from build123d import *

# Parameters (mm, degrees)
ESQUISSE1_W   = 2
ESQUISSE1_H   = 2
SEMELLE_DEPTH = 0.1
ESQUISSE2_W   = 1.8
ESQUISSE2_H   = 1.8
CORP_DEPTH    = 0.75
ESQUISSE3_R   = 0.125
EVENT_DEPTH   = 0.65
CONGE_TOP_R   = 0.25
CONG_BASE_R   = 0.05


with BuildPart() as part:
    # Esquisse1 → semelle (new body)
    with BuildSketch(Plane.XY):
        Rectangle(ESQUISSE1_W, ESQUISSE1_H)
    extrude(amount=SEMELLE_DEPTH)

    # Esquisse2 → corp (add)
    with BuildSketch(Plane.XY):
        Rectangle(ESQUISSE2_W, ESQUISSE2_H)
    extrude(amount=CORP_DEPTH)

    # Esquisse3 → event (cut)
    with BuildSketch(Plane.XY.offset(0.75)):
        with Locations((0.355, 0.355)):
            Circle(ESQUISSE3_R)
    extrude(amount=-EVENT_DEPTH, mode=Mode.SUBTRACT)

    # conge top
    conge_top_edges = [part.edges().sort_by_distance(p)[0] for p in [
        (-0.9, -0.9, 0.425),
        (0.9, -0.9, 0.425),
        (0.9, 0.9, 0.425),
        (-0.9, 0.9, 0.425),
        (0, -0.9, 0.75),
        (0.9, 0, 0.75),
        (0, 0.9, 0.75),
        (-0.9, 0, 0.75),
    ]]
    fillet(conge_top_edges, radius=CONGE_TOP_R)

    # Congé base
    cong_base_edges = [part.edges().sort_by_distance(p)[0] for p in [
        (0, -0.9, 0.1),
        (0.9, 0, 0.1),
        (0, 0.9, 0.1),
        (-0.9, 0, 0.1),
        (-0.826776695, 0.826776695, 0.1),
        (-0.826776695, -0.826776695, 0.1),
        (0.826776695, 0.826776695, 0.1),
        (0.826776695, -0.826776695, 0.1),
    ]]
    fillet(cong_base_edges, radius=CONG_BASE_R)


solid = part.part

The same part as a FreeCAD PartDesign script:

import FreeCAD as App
import Part
import Sketcher

V = App.Vector


def edges_at(feature, points):
    """Names of the edges that pass closest to the given points."""
    edges = feature.Shape.Edges
    near = lambda p: min(range(len(edges)), key=lambda i: edges[i].distToShape(Part.Vertex(*p))[0])
    return sorted({f"Edge{near(p) + 1}" for p in points})

doc = App.newDocument("Part")
body = doc.addObject("PartDesign::Body", "Body")

# Sketch on XY plane
sketch1 = body.newObject("Sketcher::SketchObject", "Sketch")
sketch1.AttachmentSupport = (doc.getObject("XY_Plane"), [""])
sketch1.MapMode = "FlatFace"
sketch1.addGeometry(Part.LineSegment(V(-1, 1, 0), V(-1, -1, 0)), False)
sketch1.addGeometry(Part.LineSegment(V(-1, -1, 0), V(1, -1, 0)), False)
sketch1.addGeometry(Part.LineSegment(V(1, -1, 0), V(1, 1, 0)), False)
sketch1.addGeometry(Part.LineSegment(V(1, 1, 0), V(-1, 1, 0)), False)
sketch1.addConstraint(Sketcher.Constraint("Coincident", 0, 2, 1, 1))
sketch1.addConstraint(Sketcher.Constraint("Coincident", 1, 2, 2, 1))
sketch1.addConstraint(Sketcher.Constraint("Coincident", 2, 2, 3, 1))
sketch1.addConstraint(Sketcher.Constraint("Coincident", 3, 2, 0, 1))
sketch1.addConstraint(Sketcher.Constraint("Vertical", 0))
sketch1.addConstraint(Sketcher.Constraint("Horizontal", 1))
sketch1.addConstraint(Sketcher.Constraint("Vertical", 2))
sketch1.addConstraint(Sketcher.Constraint("Horizontal", 3))
sketch1.addConstraint(Sketcher.Constraint("Symmetric", 0, 2, 2, 2, -1, 1))
sketch1.addConstraint(Sketcher.Constraint("Equal", 3, 0))
sketch1.addConstraint(Sketcher.Constraint("DistanceX", 1, 1, 1, 2, 2.0))
pad1 = body.newObject("PartDesign::Pad", "Pad")
pad1.Profile = sketch1
pad1.Length = 0.1

# Sketch on XY plane
sketch2 = body.newObject("Sketcher::SketchObject", "Sketch001")
sketch2.AttachmentSupport = (doc.getObject("XY_Plane"), [""])
sketch2.MapMode = "FlatFace"
sketch2.addGeometry(Part.LineSegment(V(-0.9, 0.9, 0), V(-0.9, -0.9, 0)), False)
sketch2.addGeometry(Part.LineSegment(V(-0.9, -0.9, 0), V(0.9, -0.9, 0)), False)
sketch2.addGeometry(Part.LineSegment(V(0.9, -0.9, 0), V(0.9, 0.9, 0)), False)
sketch2.addGeometry(Part.LineSegment(V(0.9, 0.9, 0), V(-0.9, 0.9, 0)), False)
sketch2.addConstraint(Sketcher.Constraint("Coincident", 0, 2, 1, 1))
sketch2.addConstraint(Sketcher.Constraint("Coincident", 1, 2, 2, 1))
sketch2.addConstraint(Sketcher.Constraint("Coincident", 2, 2, 3, 1))
sketch2.addConstraint(Sketcher.Constraint("Coincident", 3, 2, 0, 1))
sketch2.addConstraint(Sketcher.Constraint("Vertical", 0))
sketch2.addConstraint(Sketcher.Constraint("Horizontal", 1))
sketch2.addConstraint(Sketcher.Constraint("Vertical", 2))
sketch2.addConstraint(Sketcher.Constraint("Horizontal", 3))
sketch2.addConstraint(Sketcher.Constraint("Symmetric", 0, 2, 2, 2, -1, 1))
sketch2.addConstraint(Sketcher.Constraint("Equal", 3, 0))
sketch2.addConstraint(Sketcher.Constraint("DistanceX", 1, 1, 1, 2, 1.8))
pad2 = body.newObject("PartDesign::Pad", "Pad001")
pad2.Profile = sketch2
pad2.Length = 0.75

# Sketch on XY plane
sketch3 = body.newObject("Sketcher::SketchObject", "Sketch002")
sketch3.AttachmentSupport = (doc.getObject("XY_Plane"), [""])
sketch3.MapMode = "FlatFace"
sketch3.AttachmentOffset = App.Placement(V(0, 0, 0.75), App.Rotation())
sketch3.addGeometry(Part.Circle(V(0.35, 0.35, 0), V(0, 0, 1), 0.12), False)
sketch3.addConstraint(Sketcher.Constraint("Diameter", 0, 0.25))
sketch3.addConstraint(Sketcher.Constraint("DistanceX", -1, 1, 0, 3, 0.355))
sketch3.addConstraint(Sketcher.Constraint("DistanceY", -1, 1, 0, 3, 0.355))
pocket1 = body.newObject("PartDesign::Pocket", "Pocket")
pocket1.Profile = sketch3
pocket1.Length = 0.65
doc.recompute()

fillet = body.newObject("PartDesign::Fillet", "Fillet")
fillet.Base = (pocket1, edges_at(pocket1, [
    (-0.9, -0.9, 0.425),
    (0.9, -0.9, 0.425),
    (0.9, 0.9, 0.425),
    (-0.9, 0.9, 0.425),
    (0, -0.9, 0.75),
    (0.9, 0, 0.75),
    (0, 0.9, 0.75),
    (-0.9, 0, 0.75),
]))
fillet.Radius = 0.25
doc.recompute()

fillet2 = body.newObject("PartDesign::Fillet", "Fillet001")
fillet2.Base = (fillet, edges_at(fillet, [
    (0, -0.9, 0.1),
    (0.9, 0, 0.1),
    (0, 0.9, 0.1),
    (-0.9, 0, 0.1),
    (-0.827, 0.827, 0.1),
    (-0.827, -0.827, 0.1),
    (0.827, 0.827, 0.1),
    (0.827, -0.827, 0.1),
]))
fillet2.Radius = 0.05

doc.recompute()
